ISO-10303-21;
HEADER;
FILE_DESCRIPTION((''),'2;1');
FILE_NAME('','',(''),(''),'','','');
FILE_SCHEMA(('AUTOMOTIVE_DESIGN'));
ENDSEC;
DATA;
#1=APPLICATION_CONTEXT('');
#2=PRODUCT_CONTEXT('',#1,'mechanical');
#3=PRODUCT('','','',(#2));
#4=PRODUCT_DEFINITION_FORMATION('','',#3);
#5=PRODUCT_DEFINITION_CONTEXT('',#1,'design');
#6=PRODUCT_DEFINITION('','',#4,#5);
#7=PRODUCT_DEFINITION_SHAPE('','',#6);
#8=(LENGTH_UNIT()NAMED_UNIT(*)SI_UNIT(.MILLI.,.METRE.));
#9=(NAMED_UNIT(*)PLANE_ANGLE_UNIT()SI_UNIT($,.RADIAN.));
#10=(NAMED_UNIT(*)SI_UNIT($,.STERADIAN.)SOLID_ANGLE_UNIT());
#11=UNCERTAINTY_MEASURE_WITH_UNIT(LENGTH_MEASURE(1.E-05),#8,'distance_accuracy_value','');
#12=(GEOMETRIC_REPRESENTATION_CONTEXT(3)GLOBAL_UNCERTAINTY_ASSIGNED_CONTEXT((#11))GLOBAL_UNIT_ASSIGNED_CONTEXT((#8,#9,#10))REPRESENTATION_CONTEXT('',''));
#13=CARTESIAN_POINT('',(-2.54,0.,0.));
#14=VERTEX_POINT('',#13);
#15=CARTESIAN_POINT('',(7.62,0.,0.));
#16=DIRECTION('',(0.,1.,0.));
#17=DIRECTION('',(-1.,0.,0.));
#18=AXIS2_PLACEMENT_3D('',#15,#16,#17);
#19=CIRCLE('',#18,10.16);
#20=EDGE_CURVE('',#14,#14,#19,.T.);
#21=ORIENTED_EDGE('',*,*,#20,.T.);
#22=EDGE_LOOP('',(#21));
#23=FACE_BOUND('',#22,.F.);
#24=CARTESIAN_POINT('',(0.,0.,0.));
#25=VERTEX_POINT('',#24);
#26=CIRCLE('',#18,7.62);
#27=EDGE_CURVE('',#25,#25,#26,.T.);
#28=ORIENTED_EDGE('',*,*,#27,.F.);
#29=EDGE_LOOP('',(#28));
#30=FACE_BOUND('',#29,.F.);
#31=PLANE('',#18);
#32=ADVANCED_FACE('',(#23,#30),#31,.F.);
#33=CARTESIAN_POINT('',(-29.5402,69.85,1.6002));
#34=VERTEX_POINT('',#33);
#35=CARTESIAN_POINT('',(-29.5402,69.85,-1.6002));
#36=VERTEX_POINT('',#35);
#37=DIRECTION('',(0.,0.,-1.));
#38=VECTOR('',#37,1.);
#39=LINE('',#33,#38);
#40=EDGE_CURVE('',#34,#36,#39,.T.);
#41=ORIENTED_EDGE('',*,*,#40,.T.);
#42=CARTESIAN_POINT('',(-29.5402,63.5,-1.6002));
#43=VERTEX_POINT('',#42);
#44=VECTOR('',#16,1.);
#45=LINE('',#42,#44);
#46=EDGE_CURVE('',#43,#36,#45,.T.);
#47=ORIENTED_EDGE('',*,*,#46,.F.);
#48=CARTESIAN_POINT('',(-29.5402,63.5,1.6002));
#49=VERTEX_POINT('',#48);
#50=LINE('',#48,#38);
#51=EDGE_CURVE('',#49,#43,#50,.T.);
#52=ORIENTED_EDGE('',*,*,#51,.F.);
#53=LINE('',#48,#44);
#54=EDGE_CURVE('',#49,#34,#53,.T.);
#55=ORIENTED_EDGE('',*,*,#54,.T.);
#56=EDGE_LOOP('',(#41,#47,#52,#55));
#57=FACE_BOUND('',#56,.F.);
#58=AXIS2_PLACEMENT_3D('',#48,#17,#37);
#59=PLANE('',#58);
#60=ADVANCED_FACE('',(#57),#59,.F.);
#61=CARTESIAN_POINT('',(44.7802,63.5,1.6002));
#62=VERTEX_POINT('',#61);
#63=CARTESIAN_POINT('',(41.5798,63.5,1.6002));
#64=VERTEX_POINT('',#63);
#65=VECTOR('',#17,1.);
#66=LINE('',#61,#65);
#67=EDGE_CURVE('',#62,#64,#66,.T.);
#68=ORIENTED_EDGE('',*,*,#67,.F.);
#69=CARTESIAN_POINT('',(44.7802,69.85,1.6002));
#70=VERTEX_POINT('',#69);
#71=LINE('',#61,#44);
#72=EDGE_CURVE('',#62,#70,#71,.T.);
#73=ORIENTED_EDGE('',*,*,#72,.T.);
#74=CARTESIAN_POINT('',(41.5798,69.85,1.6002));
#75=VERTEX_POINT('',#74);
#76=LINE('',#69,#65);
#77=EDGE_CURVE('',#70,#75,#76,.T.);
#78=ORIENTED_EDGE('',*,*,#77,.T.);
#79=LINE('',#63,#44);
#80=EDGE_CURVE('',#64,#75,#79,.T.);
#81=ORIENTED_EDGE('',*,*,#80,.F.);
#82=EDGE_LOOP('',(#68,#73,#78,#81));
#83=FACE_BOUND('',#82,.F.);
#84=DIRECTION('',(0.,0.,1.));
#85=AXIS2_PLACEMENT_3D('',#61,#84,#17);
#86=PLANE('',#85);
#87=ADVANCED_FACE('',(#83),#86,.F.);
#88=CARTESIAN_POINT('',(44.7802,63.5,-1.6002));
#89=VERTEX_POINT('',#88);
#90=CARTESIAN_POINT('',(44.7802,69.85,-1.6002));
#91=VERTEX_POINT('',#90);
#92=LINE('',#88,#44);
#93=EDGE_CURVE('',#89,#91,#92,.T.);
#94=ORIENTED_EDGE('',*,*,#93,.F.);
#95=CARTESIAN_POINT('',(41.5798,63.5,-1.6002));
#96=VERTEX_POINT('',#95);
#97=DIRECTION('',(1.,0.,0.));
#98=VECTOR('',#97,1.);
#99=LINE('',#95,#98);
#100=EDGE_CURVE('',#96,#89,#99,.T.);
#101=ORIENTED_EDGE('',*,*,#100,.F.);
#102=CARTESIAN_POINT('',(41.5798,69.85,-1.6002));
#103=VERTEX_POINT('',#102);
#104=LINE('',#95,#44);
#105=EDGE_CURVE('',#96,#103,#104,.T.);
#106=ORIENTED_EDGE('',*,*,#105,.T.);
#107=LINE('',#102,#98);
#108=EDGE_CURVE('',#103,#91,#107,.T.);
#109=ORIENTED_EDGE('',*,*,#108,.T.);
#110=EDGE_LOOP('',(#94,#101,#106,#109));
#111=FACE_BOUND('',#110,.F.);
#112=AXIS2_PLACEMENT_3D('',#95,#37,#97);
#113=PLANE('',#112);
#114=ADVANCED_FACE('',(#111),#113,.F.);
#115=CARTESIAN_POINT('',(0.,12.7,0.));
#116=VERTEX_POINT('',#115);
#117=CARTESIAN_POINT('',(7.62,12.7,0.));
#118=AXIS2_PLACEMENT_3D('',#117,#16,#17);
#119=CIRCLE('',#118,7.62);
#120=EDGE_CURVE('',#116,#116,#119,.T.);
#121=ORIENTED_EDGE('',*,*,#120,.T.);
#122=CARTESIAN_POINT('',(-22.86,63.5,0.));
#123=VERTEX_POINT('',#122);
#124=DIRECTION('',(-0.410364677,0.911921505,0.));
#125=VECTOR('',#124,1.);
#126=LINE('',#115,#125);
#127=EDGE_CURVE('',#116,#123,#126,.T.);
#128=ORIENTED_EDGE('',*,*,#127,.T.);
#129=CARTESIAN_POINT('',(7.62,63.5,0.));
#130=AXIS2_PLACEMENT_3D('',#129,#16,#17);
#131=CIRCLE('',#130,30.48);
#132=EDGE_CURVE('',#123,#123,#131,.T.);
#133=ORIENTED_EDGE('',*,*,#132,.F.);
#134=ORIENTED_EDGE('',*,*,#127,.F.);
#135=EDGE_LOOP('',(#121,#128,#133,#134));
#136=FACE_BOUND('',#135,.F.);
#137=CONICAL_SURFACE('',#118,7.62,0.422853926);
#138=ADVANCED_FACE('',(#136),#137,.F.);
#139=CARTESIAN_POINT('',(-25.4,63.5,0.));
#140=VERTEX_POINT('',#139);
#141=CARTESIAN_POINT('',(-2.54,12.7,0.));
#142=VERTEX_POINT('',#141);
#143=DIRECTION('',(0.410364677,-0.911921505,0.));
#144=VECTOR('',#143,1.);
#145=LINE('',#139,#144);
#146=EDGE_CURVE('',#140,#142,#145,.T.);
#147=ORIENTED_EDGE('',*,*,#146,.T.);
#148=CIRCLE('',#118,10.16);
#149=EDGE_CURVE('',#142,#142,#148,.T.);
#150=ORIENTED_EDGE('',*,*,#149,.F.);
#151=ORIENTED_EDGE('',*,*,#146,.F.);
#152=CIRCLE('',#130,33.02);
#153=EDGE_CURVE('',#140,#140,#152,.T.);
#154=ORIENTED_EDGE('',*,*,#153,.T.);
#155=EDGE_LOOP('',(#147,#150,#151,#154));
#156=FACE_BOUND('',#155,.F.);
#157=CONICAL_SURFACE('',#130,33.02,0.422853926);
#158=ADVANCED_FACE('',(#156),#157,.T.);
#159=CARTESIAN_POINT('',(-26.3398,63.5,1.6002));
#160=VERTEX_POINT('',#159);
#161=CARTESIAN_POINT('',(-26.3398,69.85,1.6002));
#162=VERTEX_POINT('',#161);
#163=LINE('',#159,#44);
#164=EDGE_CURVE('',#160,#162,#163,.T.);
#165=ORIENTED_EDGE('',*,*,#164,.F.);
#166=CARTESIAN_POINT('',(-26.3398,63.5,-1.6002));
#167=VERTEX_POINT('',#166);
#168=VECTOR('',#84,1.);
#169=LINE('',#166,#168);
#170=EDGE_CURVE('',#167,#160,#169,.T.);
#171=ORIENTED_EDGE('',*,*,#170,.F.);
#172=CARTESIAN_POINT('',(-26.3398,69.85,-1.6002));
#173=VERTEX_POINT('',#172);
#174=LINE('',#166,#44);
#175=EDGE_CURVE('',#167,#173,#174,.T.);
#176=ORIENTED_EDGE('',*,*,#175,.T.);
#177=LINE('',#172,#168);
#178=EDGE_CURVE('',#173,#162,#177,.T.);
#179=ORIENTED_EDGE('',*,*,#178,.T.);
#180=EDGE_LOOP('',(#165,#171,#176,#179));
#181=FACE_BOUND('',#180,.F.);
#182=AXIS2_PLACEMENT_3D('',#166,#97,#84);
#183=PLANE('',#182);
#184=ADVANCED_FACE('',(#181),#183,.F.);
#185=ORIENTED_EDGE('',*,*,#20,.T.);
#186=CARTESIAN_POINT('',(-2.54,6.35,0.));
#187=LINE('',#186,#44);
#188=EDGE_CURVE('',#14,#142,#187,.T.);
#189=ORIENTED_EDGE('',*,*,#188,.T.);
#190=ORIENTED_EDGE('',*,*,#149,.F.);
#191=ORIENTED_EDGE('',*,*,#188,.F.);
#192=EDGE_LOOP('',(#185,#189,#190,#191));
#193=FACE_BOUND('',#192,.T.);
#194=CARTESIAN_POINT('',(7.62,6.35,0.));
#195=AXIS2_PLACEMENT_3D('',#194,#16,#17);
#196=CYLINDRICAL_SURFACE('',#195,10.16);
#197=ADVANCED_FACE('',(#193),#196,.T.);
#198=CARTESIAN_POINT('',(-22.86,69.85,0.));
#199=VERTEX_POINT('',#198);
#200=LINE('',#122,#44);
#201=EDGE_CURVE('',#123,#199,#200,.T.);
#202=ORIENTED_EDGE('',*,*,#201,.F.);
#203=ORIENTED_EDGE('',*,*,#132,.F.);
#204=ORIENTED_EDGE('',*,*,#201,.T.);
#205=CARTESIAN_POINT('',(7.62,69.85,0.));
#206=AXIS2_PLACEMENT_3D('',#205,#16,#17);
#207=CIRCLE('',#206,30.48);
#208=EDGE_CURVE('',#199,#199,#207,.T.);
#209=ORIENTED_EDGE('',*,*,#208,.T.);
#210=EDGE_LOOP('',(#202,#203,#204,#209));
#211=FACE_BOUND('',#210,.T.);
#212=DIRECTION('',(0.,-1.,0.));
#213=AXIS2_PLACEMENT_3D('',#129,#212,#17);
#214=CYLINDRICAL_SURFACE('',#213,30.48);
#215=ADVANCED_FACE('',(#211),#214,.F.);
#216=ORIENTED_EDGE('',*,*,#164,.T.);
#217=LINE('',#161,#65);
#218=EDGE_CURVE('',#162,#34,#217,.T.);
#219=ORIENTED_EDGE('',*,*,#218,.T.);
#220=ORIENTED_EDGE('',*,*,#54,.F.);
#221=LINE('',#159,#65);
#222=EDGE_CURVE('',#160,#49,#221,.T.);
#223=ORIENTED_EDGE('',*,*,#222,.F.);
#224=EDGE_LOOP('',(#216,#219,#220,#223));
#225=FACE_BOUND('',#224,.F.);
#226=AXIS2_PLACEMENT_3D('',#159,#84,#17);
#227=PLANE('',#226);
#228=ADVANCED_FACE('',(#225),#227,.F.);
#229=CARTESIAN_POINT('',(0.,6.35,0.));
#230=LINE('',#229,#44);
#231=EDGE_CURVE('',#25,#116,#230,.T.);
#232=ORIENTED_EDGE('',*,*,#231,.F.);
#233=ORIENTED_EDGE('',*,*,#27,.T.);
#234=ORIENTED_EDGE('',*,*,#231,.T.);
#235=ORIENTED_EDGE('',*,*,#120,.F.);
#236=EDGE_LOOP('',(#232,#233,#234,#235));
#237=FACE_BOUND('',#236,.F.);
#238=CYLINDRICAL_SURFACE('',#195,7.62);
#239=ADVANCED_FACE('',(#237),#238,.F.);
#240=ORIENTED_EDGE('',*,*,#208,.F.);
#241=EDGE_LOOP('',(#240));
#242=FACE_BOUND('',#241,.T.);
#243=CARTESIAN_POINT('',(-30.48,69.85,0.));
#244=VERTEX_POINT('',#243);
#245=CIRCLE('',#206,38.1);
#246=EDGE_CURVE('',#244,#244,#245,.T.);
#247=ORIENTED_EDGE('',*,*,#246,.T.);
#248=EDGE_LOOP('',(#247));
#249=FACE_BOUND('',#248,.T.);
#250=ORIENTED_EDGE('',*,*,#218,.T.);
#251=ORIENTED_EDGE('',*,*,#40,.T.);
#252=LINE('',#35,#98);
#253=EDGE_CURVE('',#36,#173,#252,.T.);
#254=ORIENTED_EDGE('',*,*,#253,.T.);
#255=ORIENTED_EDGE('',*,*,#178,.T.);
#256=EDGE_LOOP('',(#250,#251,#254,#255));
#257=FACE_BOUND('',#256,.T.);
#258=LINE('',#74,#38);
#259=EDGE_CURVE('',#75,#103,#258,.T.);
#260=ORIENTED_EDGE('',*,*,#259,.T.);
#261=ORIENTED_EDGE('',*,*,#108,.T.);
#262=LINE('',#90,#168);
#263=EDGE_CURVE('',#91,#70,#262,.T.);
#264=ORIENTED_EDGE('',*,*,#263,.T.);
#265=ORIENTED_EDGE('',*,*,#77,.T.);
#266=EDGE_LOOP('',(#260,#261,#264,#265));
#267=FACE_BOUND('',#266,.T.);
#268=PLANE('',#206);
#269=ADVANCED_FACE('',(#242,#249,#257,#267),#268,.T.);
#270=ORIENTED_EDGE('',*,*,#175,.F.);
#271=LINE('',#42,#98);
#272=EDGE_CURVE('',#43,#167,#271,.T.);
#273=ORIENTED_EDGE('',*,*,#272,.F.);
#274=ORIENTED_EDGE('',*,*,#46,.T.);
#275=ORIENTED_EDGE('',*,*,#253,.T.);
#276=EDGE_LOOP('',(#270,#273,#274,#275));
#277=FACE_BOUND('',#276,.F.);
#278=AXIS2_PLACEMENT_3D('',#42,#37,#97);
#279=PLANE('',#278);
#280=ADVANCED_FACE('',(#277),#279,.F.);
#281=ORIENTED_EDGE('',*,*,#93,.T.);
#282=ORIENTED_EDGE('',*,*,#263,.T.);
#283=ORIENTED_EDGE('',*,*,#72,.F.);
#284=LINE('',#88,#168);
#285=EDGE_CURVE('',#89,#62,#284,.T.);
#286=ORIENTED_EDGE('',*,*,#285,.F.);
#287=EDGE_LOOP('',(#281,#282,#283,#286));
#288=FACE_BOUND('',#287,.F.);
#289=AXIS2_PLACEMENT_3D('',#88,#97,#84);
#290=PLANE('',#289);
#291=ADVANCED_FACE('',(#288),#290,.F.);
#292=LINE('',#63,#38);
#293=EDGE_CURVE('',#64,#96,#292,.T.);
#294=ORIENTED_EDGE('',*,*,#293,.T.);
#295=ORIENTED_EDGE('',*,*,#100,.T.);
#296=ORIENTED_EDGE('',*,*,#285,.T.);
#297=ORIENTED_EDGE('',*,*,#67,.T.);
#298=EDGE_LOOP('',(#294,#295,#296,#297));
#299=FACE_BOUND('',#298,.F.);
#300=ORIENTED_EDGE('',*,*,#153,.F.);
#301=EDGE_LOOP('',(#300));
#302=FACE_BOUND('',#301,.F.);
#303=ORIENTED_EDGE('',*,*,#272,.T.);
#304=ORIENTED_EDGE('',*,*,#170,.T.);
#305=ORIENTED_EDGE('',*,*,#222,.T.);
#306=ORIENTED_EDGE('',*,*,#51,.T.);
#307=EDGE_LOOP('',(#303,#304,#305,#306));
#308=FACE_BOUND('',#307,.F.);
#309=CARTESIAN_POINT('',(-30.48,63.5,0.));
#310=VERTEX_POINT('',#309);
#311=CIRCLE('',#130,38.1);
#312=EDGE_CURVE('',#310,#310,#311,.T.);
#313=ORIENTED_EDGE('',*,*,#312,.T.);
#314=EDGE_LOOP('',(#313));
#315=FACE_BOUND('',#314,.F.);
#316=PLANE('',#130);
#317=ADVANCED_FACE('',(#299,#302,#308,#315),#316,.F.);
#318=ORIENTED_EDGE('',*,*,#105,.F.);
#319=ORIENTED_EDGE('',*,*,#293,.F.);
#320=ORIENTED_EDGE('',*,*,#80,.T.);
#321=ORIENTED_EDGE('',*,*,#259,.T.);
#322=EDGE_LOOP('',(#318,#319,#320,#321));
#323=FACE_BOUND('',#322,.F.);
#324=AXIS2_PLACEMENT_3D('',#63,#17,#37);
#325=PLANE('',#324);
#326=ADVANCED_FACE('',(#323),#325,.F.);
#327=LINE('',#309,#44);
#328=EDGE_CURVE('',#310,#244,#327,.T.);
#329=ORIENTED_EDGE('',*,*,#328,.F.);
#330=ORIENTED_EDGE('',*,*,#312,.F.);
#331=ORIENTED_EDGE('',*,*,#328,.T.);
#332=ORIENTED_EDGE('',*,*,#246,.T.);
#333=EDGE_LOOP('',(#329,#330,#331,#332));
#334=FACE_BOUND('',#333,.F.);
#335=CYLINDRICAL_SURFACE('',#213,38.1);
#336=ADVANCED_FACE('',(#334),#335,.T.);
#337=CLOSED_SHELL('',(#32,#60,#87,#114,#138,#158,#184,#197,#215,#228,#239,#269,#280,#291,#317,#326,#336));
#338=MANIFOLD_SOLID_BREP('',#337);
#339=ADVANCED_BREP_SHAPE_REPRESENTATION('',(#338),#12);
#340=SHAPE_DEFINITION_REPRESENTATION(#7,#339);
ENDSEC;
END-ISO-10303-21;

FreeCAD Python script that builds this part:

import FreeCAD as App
import Part
import Sketcher

V = App.Vector
Q = App.Units.Quantity


def add_polygon(sketch, points):
    """Adds a closed chain of lines whose ends are joined by coincident constraints."""
    first, n = sketch.GeometryCount, len(points)
    for a, b in zip(points, points[1:] + points[:1]):
        sketch.addGeometry(Part.LineSegment(App.Vector(*a, 0), App.Vector(*b, 0)), False)
    for i in range(n):
        sketch.addConstraint(Sketcher.Constraint("Coincident", first + i, 2, first + (i + 1) % n, 1))

doc = App.newDocument("Part")
params = doc.addObject("Spreadsheet::Sheet", "Params")
for row, (alias, value) in enumerate([
    ("sketch1_width", "0.1 in"),
    ("sketch1_height", "0.5 in"),
    ("sketch1_height2", "2.5 in"),
    ("revolution_angle", "360 deg"),
    ("sketch2_diameter", "3 in"),
    ("sketch2_diameter2", "2.6 in"),
    ("sketch2_width", "0.126 in"),
    ("pad1_length", "0.25 in"),
    ("sketch3_diameter", "2.6 in"),
    ("sketch3_diameter2", "2.4 in"),
    ("pad2_length", "0.25 in"),
], start=1):
    params.set(f"A{row}", alias)
    params.set(f"B{row}", "=" + value)
    params.setAlias(f"B{row}", alias)

body = doc.addObject("PartDesign::Body", "Body")
body.AllowCompound = True

sketch1 = body.newObject("Sketcher::SketchObject", "Sketch")
sketch1.AttachmentSupport = (doc.getObject("XY_Plane"), [""])
sketch1.MapMode = "FlatFace"
add_polygon(sketch1, [(0, 12.7), (-22.9, 63.5), (-25.4, 63.5), (-2.5, 12.7), (-2.5, 0), (0, 0)])
sketch1.addGeometry(Part.LineSegment(V(7.6, 0, 0), V(7.6, 63.5, 0)), True)
sketch1.addConstraint([
    Sketcher.Constraint("Horizontal", 1),
    Sketcher.Constraint("Vertical", 3),
    Sketcher.Constraint("Horizontal", 4),
    Sketcher.Constraint("Vertical", 5),
    Sketcher.Constraint("Vertical", 6),
    Sketcher.Constraint("Coincident", 4, 2, -1, 1),
    Sketcher.Constraint("PointOnObject", 6, 1, -1),
    Sketcher.Constraint("Parallel", 0, 2),
    Sketcher.Constraint("Horizontal", 2, 2, 5, 2),
    Sketcher.Constraint("Horizontal", 1, 2, 6, 2),
    Sketcher.Constraint("DistanceX", 1, 2, 1, 1, Q("0.1 in")),
    Sketcher.Constraint("DistanceY", 3, 2, 3, 1, Q("0.5 in")),
    Sketcher.Constraint("DistanceY", 6, 1, 6, 2, Q("2.5 in")),
    Sketcher.Constraint("DistanceX", 1, 2, -1, 1, Q("1 in")),
    Sketcher.Constraint("DistanceX", -1, 1, 6, 1, Q("0.3 in")),
])
sketch1.setExpression("Constraints[16]", "Params.sketch1_width")
sketch1.setExpression("Constraints[17]", "Params.sketch1_height")
sketch1.setExpression("Constraints[18]", "Params.sketch1_height2")
revolution = body.newObject("PartDesign::Revolution", "Revolution")
revolution.Profile = sketch1
revolution.ReferenceAxis = (sketch1, ["Axis0"])
revolution.setExpression("Angle", "Params.revolution_angle")

sketch2 = body.newObject("Sketcher::SketchObject", "Sketch001")
sketch2.AttachmentSupport = (doc.getObject("XZ_Plane"), [""])
sketch2.MapMode = "FlatFace"
sketch2.AttachmentOffset = App.Placement(V(0, 0, -2.5 * 25.4), App.Rotation())
sketch2.addGeometry(Part.Circle(V(7.6, 0, 0), V(0, 0, 1), 38.1), False)
add_polygon(sketch2, [(41.6, 1.6), (41.6, -1.6), (44.8, -1.6), (44.8, 1.6)])
sketch2.addGeometry(Part.Circle(V(7.6, 0, 0), V(0, 0, 1), 33), False)
add_polygon(sketch2, [(-29.5, -1.6), (-26.3, -1.6), (-26.3, 1.6), (-29.5, 1.6)])
sketch2.addConstraint([
    Sketcher.Constraint("Vertical", 1),
    Sketcher.Constraint("Horizontal", 2),
    Sketcher.Constraint("Vertical", 3),
    Sketcher.Constraint("Horizontal", 4),
    Sketcher.Constraint("Horizontal", 6),
    Sketcher.Constraint("Vertical", 7),
    Sketcher.Constraint("Horizontal", 8),
    Sketcher.Constraint("Vertical", 9),
    Sketcher.Constraint("Coincident", 5, 3, 0, 3),
    Sketcher.Constraint("PointOnObject", 0, 3, -1),
    Sketcher.Constraint("Horizontal", 2, 2, 6, 2),
    Sketcher.Constraint("Horizontal", 4, 2, 7, 2),
    Sketcher.Constraint("Equal", 4, 6),
    Sketcher.Constraint("Equal", 8, 1),
    Sketcher.Constraint("Diameter", 0, Q("3 in")),
    Sketcher.Constraint("Diameter", 5, Q("2.6 in")),
    Sketcher.Constraint("DistanceX", -1, 1, 0, 3, Q("0.3 in")),
    Sketcher.Constraint("DistanceX", 6, 2, 2, 2, Q("2.8 in")),
    Sketcher.Constraint("DistanceX", 2, 1, 2, 2, Q("0.126 in")),
    Sketcher.Constraint("DistanceX", -1, 1, 1, 2, Q("1.637 in")),
    Sketcher.Constraint("DistanceY", 1, 2, -1, 1, Q("0.063 in")),
])
sketch2.setExpression("Constraints[22]", "Params.sketch2_diameter")
sketch2.setExpression("Constraints[23]", "Params.sketch2_diameter2")
sketch2.setExpression("Constraints[26]", "Params.sketch2_width")
pad1 = body.newObject("PartDesign::Pad", "Pad")
pad1.Profile = sketch2
pad1.setExpression("Length", "Params.pad1_length")
pad1.Reversed = True

sketch3 = body.newObject("Sketcher::SketchObject", "Sketch002")
sketch3.AttachmentSupport = (doc.getObject("XZ_Plane"), [""])
sketch3.MapMode = "FlatFace"
sketch3.AttachmentOffset = App.Placement(V(0, 0, -2.5 * 25.4), App.Rotation())
sketch3.addGeometry([
    Part.Circle(V(8, 0, 0), V(0, 0, 1), 33),
    Part.Circle(V(8, 0, 0), V(0, 0, 1), 30),
], False)
sketch3.addConstraint([
    Sketcher.Constraint("Coincident", 1, 3, 0, 3),
    Sketcher.Constraint("PointOnObject", 0, 3, -1),
    Sketcher.Constraint("Diameter", 0, Q("2.6 in")),
    Sketcher.Constraint("Diameter", 1, Q("2.4 in")),
    Sketcher.Constraint("DistanceX", -1, 1, 0, 3, Q("0.3 in")),
])
sketch3.setExpression("Constraints[2]", "Params.sketch3_diameter")
sketch3.setExpression("Constraints[3]", "Params.sketch3_diameter2")
pad2 = body.newObject("PartDesign::Pad", "Pad001")
pad2.Profile = sketch3
pad2.setExpression("Length", "Params.pad2_length")
pad2.Reversed = True

doc.recompute()
